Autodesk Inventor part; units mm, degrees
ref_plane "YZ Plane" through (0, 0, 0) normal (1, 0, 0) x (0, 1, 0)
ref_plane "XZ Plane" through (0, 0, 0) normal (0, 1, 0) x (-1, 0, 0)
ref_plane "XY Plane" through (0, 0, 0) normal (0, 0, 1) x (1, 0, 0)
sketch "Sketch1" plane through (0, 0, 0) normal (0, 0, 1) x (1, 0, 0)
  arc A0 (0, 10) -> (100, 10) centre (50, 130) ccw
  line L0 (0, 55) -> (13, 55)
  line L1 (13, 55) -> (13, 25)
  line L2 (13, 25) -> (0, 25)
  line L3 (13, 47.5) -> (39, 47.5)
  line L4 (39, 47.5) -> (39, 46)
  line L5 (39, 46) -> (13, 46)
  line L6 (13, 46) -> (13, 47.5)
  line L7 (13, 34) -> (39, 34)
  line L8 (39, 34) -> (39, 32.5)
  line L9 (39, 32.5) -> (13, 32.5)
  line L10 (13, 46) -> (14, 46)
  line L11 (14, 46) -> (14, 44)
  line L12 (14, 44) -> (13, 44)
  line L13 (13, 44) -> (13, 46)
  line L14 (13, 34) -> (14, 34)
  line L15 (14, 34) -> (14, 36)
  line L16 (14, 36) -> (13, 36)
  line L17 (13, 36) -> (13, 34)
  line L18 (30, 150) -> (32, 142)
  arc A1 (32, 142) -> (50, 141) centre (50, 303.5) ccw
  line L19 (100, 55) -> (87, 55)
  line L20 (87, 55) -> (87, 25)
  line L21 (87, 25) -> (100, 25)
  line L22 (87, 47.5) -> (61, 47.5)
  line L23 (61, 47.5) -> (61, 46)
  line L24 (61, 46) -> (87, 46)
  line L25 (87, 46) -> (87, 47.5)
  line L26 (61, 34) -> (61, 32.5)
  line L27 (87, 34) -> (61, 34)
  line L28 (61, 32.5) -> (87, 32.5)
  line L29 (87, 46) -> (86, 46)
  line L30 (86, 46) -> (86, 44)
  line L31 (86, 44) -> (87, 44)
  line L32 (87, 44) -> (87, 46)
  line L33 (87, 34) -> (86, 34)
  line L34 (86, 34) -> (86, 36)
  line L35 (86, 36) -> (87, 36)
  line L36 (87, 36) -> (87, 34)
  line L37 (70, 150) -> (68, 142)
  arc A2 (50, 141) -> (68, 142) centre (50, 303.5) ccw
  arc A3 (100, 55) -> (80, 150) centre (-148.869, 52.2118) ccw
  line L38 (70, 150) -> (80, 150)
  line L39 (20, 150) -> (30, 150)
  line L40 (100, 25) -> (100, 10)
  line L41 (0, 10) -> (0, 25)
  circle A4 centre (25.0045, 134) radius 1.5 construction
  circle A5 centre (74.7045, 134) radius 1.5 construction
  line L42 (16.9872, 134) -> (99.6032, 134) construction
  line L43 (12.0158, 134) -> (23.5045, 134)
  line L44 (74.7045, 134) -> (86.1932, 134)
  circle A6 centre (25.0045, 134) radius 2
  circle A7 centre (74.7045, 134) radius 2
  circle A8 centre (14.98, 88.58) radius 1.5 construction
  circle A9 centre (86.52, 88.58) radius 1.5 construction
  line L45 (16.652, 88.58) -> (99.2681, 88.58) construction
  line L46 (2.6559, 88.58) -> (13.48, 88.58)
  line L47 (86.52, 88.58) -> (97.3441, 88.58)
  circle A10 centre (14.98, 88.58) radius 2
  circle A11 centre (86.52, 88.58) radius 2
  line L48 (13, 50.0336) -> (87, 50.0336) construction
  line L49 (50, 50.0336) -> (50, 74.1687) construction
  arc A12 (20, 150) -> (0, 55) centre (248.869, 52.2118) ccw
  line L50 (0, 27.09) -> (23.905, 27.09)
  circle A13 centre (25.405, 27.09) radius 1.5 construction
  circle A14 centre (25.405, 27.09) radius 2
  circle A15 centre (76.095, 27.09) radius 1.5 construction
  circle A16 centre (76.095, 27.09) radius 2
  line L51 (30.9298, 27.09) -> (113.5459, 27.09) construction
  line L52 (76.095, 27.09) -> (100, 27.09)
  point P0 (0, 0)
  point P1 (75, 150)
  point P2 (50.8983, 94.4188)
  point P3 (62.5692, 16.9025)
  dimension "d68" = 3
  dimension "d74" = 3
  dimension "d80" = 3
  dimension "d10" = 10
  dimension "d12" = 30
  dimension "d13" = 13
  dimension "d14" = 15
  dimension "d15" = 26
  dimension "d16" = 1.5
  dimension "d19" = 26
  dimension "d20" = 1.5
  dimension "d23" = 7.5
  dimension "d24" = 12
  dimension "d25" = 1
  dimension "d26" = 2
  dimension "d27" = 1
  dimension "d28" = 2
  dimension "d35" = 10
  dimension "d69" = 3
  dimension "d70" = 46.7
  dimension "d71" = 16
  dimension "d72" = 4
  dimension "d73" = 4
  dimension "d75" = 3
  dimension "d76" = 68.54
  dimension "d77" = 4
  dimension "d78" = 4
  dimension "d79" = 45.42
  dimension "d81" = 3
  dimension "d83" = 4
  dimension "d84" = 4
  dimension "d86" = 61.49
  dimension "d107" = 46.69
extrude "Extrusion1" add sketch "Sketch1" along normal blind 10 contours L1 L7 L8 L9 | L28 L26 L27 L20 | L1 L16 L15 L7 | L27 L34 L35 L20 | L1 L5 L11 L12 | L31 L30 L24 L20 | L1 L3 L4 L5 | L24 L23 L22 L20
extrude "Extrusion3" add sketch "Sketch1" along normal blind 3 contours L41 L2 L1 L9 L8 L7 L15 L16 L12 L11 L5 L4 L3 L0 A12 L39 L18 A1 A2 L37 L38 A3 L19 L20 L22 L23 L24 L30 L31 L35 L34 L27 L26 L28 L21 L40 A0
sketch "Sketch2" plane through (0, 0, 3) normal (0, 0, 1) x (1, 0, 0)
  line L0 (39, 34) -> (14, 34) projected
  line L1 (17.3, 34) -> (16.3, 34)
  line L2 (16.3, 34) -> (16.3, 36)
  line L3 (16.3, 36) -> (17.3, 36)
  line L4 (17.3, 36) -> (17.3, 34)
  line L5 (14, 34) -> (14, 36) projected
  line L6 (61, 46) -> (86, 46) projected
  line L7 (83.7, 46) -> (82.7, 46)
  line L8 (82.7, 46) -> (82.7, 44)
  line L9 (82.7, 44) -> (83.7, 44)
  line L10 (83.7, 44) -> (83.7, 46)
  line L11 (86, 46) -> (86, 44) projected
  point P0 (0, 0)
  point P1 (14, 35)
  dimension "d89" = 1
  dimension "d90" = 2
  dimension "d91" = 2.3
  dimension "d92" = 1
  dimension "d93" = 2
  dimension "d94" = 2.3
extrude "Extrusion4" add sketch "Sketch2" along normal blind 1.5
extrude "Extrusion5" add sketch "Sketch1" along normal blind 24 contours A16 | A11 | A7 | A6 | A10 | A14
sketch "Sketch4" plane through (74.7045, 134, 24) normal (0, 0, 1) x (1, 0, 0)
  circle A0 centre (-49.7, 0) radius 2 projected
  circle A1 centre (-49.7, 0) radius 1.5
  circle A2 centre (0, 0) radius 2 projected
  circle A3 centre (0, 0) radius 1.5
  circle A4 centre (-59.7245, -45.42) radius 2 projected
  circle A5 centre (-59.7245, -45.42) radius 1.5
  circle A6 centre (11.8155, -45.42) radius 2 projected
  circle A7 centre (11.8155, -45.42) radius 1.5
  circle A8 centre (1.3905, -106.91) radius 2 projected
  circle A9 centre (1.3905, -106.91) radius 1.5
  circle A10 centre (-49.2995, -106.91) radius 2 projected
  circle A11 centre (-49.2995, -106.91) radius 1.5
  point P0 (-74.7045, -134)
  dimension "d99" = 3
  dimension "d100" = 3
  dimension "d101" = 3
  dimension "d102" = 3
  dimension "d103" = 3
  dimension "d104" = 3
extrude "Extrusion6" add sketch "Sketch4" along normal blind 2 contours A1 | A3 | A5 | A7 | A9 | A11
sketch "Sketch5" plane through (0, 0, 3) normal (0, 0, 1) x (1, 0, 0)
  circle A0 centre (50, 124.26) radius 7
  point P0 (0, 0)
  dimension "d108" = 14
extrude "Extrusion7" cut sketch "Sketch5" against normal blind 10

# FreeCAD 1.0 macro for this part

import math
import FreeCAD as App
import Part
import Sketcher

V = App.Vector

doc = App.newDocument("Part")
params = doc.addObject("Spreadsheet::Sheet", "Params")
for row, (alias, value) in enumerate([
    ("sketch1_width", "26 mm"),
    ("sketch1_width2", "1 mm"),
    ("sketch1_height", "2 mm"),
    ("sketch1_height2", "1.5 mm"),
    ("pad1_length", "10 mm"),
    ("sketch2_diameter", "4 mm"),
    ("sketch2_width", "13 mm"),
    ("sketch2_width2", "26 mm"),
    ("sketch2_width3", "1 mm"),
    ("sketch2_width4", "10 mm"),
    ("pad2_length", "3 mm"),
    ("sketch3_width", "1 mm"),
    ("sketch3_height", "2 mm"),
    ("pad3_length", "1.5 mm"),
    ("sketch4_diameter", "4 mm"),
    ("pad4_length", "24 mm"),
    ("sketch5_diameter", "3 mm"),
    ("pad5_length", "2 mm"),
    ("sketch6_diameter", "14 mm"),
    ("pocket1_length", "10 mm"),
], start=1):
    params.set(f"A{row}", alias)
    params.set(f"B{row}", "=" + value)
    params.setAlias(f"B{row}", alias)

body = doc.addObject("PartDesign::Body", "Body")
body.AllowCompound = True

# Sketch on XY plane
sketch1 = doc.addObject("Sketcher::SketchObject", "Sketch")
body.addObject(sketch1)
sketch1.AttachmentSupport = (doc.XY_Plane, [""])
sketch1.MapMode = "FlatFace"
sketch1.addGeometry([
    Part.LineSegment(V(13, 32.5, 0), V(39, 32.5, 0)),  # 0
    Part.LineSegment(V(39, 32.5, 0), V(39, 34, 0)),  # 1
    Part.LineSegment(V(39, 34, 0), V(14, 34, 0)),  # 2
    Part.LineSegment(V(14, 34, 0), V(14, 36, 0)),  # 3
    Part.LineSegment(V(14, 36, 0), V(13, 36, 0)),  # 4
    Part.LineSegment(V(13, 36, 0), V(13, 32.5, 0)),  # 5
    Part.LineSegment(V(61, 32.5, 0), V(87, 32.5, 0)),  # 6
    Part.LineSegment(V(87, 32.5, 0), V(87, 36, 0)),  # 7
    Part.LineSegment(V(87, 36, 0), V(86, 36, 0)),  # 8
    Part.LineSegment(V(86, 36, 0), V(86, 34, 0)),  # 9
    Part.LineSegment(V(86, 34, 0), V(61, 34, 0)),  # 10
    Part.LineSegment(V(61, 34, 0), V(61, 32.5, 0)),  # 11
    Part.LineSegment(V(13, 44, 0), V(14, 44, 0)),  # 12
    Part.LineSegment(V(14, 44, 0), V(14, 46, 0)),  # 13
    Part.LineSegment(V(14, 46, 0), V(39, 46, 0)),  # 14
    Part.LineSegment(V(39, 46, 0), V(39, 47.5, 0)),  # 15
    Part.LineSegment(V(39, 47.5, 0), V(13, 47.5, 0)),  # 16
    Part.LineSegment(V(13, 47.5, 0), V(13, 44, 0)),  # 17
    Part.LineSegment(V(86, 44, 0), V(87, 44, 0)),  # 18
    Part.LineSegment(V(87, 44, 0), V(87, 47.5, 0)),  # 19
    Part.LineSegment(V(87, 47.5, 0), V(61, 47.5, 0)),  # 20
    Part.LineSegment(V(61, 47.5, 0), V(61, 46, 0)),  # 21
    Part.LineSegment(V(61, 46, 0), V(86, 46, 0)),  # 22
    Part.LineSegment(V(86, 46, 0), V(86, 44, 0)),  # 23
], False)
sketch1.addConstraint([
    Sketcher.Constraint("Coincident", 0, 2, 1, 1),
    Sketcher.Constraint("Coincident", 1, 2, 2, 1),
    Sketcher.Constraint("Coincident", 2, 2, 3, 1),
    Sketcher.Constraint("Coincident", 3, 2, 4, 1),
    Sketcher.Constraint("Coincident", 4, 2, 5, 1),
    Sketcher.Constraint("Coincident", 5, 2, 0, 1),
    Sketcher.Constraint("Coincident", 6, 2, 7, 1),
    Sketcher.Constraint("Coincident", 7, 2, 8, 1),
    Sketcher.Constraint("Coincident", 8, 2, 9, 1),
    Sketcher.Constraint("Coincident", 9, 2, 10, 1),
    Sketcher.Constraint("Coincident", 10, 2, 11, 1),
    Sketcher.Constraint("Coincident", 11, 2, 6, 1),
    Sketcher.Constraint("Coincident", 12, 2, 13, 1),
    Sketcher.Constraint("Coincident", 13, 2, 14, 1),
    Sketcher.Constraint("Coincident", 14, 2, 15, 1),
    Sketcher.Constraint("Coincident", 15, 2, 16, 1),
    Sketcher.Constraint("Coincident", 16, 2, 17, 1),
    Sketcher.Constraint("Coincident", 17, 2, 12, 1),
    Sketcher.Constraint("Coincident", 18, 2, 19, 1),
    Sketcher.Constraint("Coincident", 19, 2, 20, 1),
    Sketcher.Constraint("Coincident", 20, 2, 21, 1),
    Sketcher.Constraint("Coincident", 21, 2, 22, 1),
    Sketcher.Constraint("Coincident", 22, 2, 23, 1),
    Sketcher.Constraint("Coincident", 23, 2, 18, 1),
    Sketcher.Constraint("Horizontal", 0),
    Sketcher.Constraint("Vertical", 1),
    Sketcher.Constraint("Horizontal", 2),
    Sketcher.Constraint("Vertical", 3),
    Sketcher.Constraint("Horizontal", 4),
    Sketcher.Constraint("Vertical", 5),
    Sketcher.Constraint("Horizontal", 6),
    Sketcher.Constraint("Vertical", 7),
    Sketcher.Constraint("Horizontal", 8),
    Sketcher.Constraint("Vertical", 9),
    Sketcher.Constraint("Horizontal", 10),
    Sketcher.Constraint("Vertical", 11),
    Sketcher.Constraint("Horizontal", 12),
    Sketcher.Constraint("Vertical", 13),
    Sketcher.Constraint("Horizontal", 14),
    Sketcher.Constraint("Vertical", 15),
    Sketcher.Constraint("Horizontal", 16),
    Sketcher.Constraint("Vertical", 17),
    Sketcher.Constraint("Horizontal", 18),
    Sketcher.Constraint("Vertical", 19),
    Sketcher.Constraint("Horizontal", 20),
    Sketcher.Constraint("Vertical", 21),
    Sketcher.Constraint("Horizontal", 22),
    Sketcher.Constraint("Vertical", 23),
    Sketcher.Constraint("Horizontal", 5, 2, 6, 2),
    Sketcher.Constraint("Horizontal", 4, 2, 7, 2),
    Sketcher.Constraint("Horizontal", 2, 2, 9, 2),
    Sketcher.Constraint("Horizontal", 17, 2, 18, 2),
    Sketcher.Constraint("Horizontal", 16, 2, 19, 2),
    Sketcher.Constraint("Horizontal", 14, 2, 21, 2),
    Sketcher.Constraint("Vertical", 3, 2, 12, 2),
    Sketcher.Constraint("Vertical", 1, 2, 14, 2),
    Sketcher.Constraint("Vertical", 5, 2, 16, 2),
    Sketcher.Constraint("Vertical", 7, 2, 18, 2),
    Sketcher.Constraint("Vertical", 11, 2, 20, 2),
    Sketcher.Constraint("Vertical", 9, 2, 22, 2),
    Sketcher.Constraint("Equal", 0, 6),
    Sketcher.Constraint("Equal", 4, 8),
    Sketcher.Constraint("Equal", 9, 13),
    Sketcher.Constraint("Equal", 11, 15),
    Sketcher.Constraint("DistanceX", 0, 1, 0, 2, 26.0),
    Sketcher.Constraint("DistanceX", 4, 2, 4, 1, 1.0),
    Sketcher.Constraint("DistanceY", 3, 1, 3, 2, 2.0),
    Sketcher.Constraint("DistanceY", 1, 1, 1, 2, 1.5),
    Sketcher.Constraint("DistanceX", -1, 1, 4, 2, 13.0),
    Sketcher.Constraint("DistanceY", 2, 2, 12, 2, 10.0),
    Sketcher.Constraint("DistanceY", -1, 1, 1, 2, 34.0),
    Sketcher.Constraint("DistanceX", -1, 1, 6, 2, 87.0),
])
sketch1.setExpression("Constraints[64]", "Params.sketch1_width")
sketch1.setExpression("Constraints[65]", "Params.sketch1_width2")
sketch1.setExpression("Constraints[66]", "Params.sketch1_height")
sketch1.setExpression("Constraints[67]", "Params.sketch1_height2")
pad1 = doc.addObject("PartDesign::Pad", "Pad")
body.addObject(pad1)
pad1.Profile = sketch1
pad1.setExpression("Length", "Params.pad1_length")

# Sketch on XY plane
sketch2 = doc.addObject("Sketcher::SketchObject", "Sketch001")
body.addObject(sketch2)
sketch2.AttachmentSupport = (doc.XY_Plane, [""])
sketch2.MapMode = "FlatFace"
sketch2.addGeometry([
    Part.LineSegment(V(0, 25, 0), V(0, 10, 0)),  # 0
    Part.ArcOfCircle(Part.Circle(V(50, 130, 0), V(0, 0, 1), 130), math.radians(-113), math.radians(-67)),  # 1
    Part.LineSegment(V(100, 10, 0), V(100, 25, 0)),  # 2
    Part.LineSegment(V(100, 25, 0), V(87, 25, 0)),  # 3
    Part.LineSegment(V(87, 25, 0), V(87, 27.1, 0)),  # 4
    Part.LineSegment(V(87, 27.1, 0), V(87, 32.5, 0)),  # 5
    Part.LineSegment(V(87, 32.5, 0), V(61, 32.5, 0)),  # 6
    Part.LineSegment(V(61, 32.5, 0), V(61, 34, 0)),  # 7
    Part.LineSegment(V(61, 34, 0), V(86, 34, 0)),  # 8
    Part.LineSegment(V(86, 34, 0), V(86, 36, 0)),  # 9
    Part.LineSegment(V(86, 36, 0), V(87, 36, 0)),  # 10
    Part.LineSegment(V(87, 36, 0), V(87, 44, 0)),  # 11
    Part.LineSegment(V(87, 44, 0), V(86, 44, 0)),  # 12
    Part.LineSegment(V(86, 44, 0), V(86, 46, 0)),  # 13
    Part.LineSegment(V(86, 46, 0), V(61, 46, 0)),  # 14
    Part.LineSegment(V(61, 46, 0), V(61, 47.5, 0)),  # 15
    Part.LineSegment(V(61, 47.5, 0), V(87, 47.5, 0)),  # 16
    Part.LineSegment(V(87, 47.5, 0), V(87, 55, 0)),  # 17
    Part.LineSegment(V(87, 55, 0), V(100, 55, 0)),  # 18
    Part.ArcOfCircle(Part.Circle(V(-148.9, 52.2, 0), V(0, 0, 1), 248.9), math.radians(0.64), math.radians(8.4)),  # 19
    Part.ArcOfCircle(Part.Circle(V(-148.9, 52.2, 0), V(0, 0, 1), 248.9), math.radians(8.4), math.radians(19.18)),  # 20
    Part.ArcOfCircle(Part.Circle(V(-148.9, 52.2, 0), V(0, 0, 1), 248.9), math.radians(19.18), math.radians(23.14)),  # 21
    Part.LineSegment(V(80, 150, 0), V(70, 150, 0)),  # 22
    Part.LineSegment(V(70, 150, 0), V(68, 142, 0)),  # 23
    Part.ArcOfCircle(Part.Circle(V(50, 303.5, 0), V(0, 0, 1), 162.5), math.radians(-96.36), math.radians(-83.64)),  # 24
    Part.LineSegment(V(32, 142, 0), V(30, 150, 0)),  # 25
    Part.LineSegment(V(30, 150, 0), V(20, 150, 0)),  # 26
    Part.ArcOfCircle(Part.Circle(V(248.9, 52.2, 0), V(0, 0, 1), 248.9), math.radians(156.86), math.radians(160.82)),  # 27
    Part.ArcOfCircle(Part.Circle(V(248.9, 52.2, 0), V(0, 0, 1), 248.9), math.radians(160.82), math.radians(171.6)),  # 28
    Part.ArcOfCircle(Part.Circle(V(248.9, 52.2, 0), V(0, 0, 1), 248.9), math.radians(171.6), math.radians(179.36)),  # 29
    Part.LineSegment(V(0, 55, 0), V(13, 55, 0)),  # 30
    Part.LineSegment(V(13, 55, 0), V(13, 47.5, 0)),  # 31
    Part.LineSegment(V(13, 47.5, 0), V(39, 47.5, 0)),  # 32
    Part.LineSegment(V(39, 47.5, 0), V(39, 46, 0)),  # 33
    Part.LineSegment(V(39, 46, 0), V(14, 46, 0)),  # 34
    Part.LineSegment(V(14, 46, 0), V(14, 44, 0)),  # 35
    Part.LineSegment(V(14, 44, 0), V(13, 44, 0)),  # 36
    Part.LineSegment(V(13, 44, 0), V(13, 36, 0)),  # 37
    Part.LineSegment(V(13, 36, 0), V(14, 36, 0)),  # 38
    Part.LineSegment(V(14, 36, 0), V(14, 34, 0)),  # 39
    Part.LineSegment(V(14, 34, 0), V(39, 34, 0)),  # 40
    Part.LineSegment(V(39, 34, 0), V(39, 32.5, 0)),  # 41
    Part.LineSegment(V(39, 32.5, 0), V(13, 32.5, 0)),  # 42
    Part.LineSegment(V(13, 32.5, 0), V(13, 27.1, 0)),  # 43
    Part.LineSegment(V(13, 27.1, 0), V(13, 25, 0)),  # 44
    Part.LineSegment(V(13, 25, 0), V(0, 25, 0)),  # 45
    Part.Circle(V(25.4, 27.1, 0), V(0, 0, 1), 2),  # 46
    Part.Circle(V(76.1, 27.1, 0), V(0, 0, 1), 2),  # 47
    Part.Circle(V(15, 88.6, 0), V(0, 0, 1), 2),  # 48
    Part.Circle(V(25, 134, 0), V(0, 0, 1), 2),  # 49
    Part.Circle(V(86.5, 88.6, 0), V(0, 0, 1), 2),  # 50
    Part.Circle(V(74.7, 134, 0), V(0, 0, 1), 2),  # 51
], False)
sketch2.addConstraint([
    Sketcher.Constraint("Coincident", 0, 2, 1, 1),
    Sketcher.Constraint("Coincident", 1, 2, 2, 1),
    Sketcher.Constraint("Coincident", 2, 2, 3, 1),
    Sketcher.Constraint("Coincident", 3, 2, 4, 1),
    Sketcher.Constraint("Coincident", 4, 2, 5, 1),
    Sketcher.Constraint("Coincident", 5, 2, 6, 1),
    Sketcher.Constraint("Coincident", 6, 2, 7, 1),
    Sketcher.Constraint("Coincident", 7, 2, 8, 1),
    Sketcher.Constraint("Coincident", 8, 2, 9, 1),
    Sketcher.Constraint("Coincident", 9, 2, 10, 1),
    Sketcher.Constraint("Coincident", 10, 2, 11, 1),
    Sketcher.Constraint("Coincident", 11, 2, 12, 1),
    Sketcher.Constraint("Coincident", 12, 2, 13, 1),
    Sketcher.Constraint("Coincident", 13, 2, 14, 1),
    Sketcher.Constraint("Coincident", 14, 2, 15, 1),
    Sketcher.Constraint("Coincident", 15, 2, 16, 1),
    Sketcher.Constraint("Coincident", 16, 2, 17, 1),
    Sketcher.Constraint("Coincident", 17, 2, 18, 1),
    Sketcher.Constraint("Coincident", 18, 2, 19, 1),
    Sketcher.Constraint("Tangent", 19, 2, 20, 1),
    Sketcher.Constraint("Tangent", 20, 2, 21, 1),
    Sketcher.Constraint("Coincident", 21, 2, 22, 1),
    Sketcher.Constraint("Coincident", 22, 2, 23, 1),
    Sketcher.Constraint("Coincident", 23, 2, 24, 2),
    Sketcher.Constraint("Coincident", 24, 1, 25, 1),
    Sketcher.Constraint("Coincident", 25, 2, 26, 1),
    Sketcher.Constraint("Coincident", 26, 2, 27, 1),
    Sketcher.Constraint("Tangent", 27, 2, 28, 1),
    Sketcher.Constraint("Tangent", 28, 2, 29, 1),
    Sketcher.Constraint("Coincident", 29, 2, 30, 1),
    Sketcher.Constraint("Coincident", 30, 2, 31, 1),
    Sketcher.Constraint("Coincident", 31, 2, 32, 1),
    Sketcher.Constraint("Coincident", 32, 2, 33, 1),
    Sketcher.Constraint("Coincident", 33, 2, 34, 1),
    Sketcher.Constraint("Coincident", 34, 2, 35, 1),
    Sketcher.Constraint("Coincident", 35, 2, 36, 1),
    Sketcher.Constraint("Coincident", 36, 2, 37, 1),
    Sketcher.Constraint("Coincident", 37, 2, 38, 1),
    Sketcher.Constraint("Coincident", 38, 2, 39, 1),
    Sketcher.Constraint("Coincident", 39, 2, 40, 1),
    Sketcher.Constraint("Coincident", 40, 2, 41, 1),
    Sketcher.Constraint("Coincident", 41, 2, 42, 1),
    Sketcher.Constraint("Coincident", 42, 2, 43, 1),
    Sketcher.Constraint("Coincident", 43, 2, 44, 1),
    Sketcher.Constraint("Coincident", 44, 2, 45, 1),
    Sketcher.Constraint("Coincident", 45, 2, 0, 1),
    Sketcher.Constraint("Vertical", 0),
    Sketcher.Constraint("Vertical", 2),
    Sketcher.Constraint("Horizontal", 3),
    Sketcher.Constraint("Vertical", 4),
    Sketcher.Constraint("Vertical", 5),
    Sketcher.Constraint("Horizontal", 6),
    Sketcher.Constraint("Vertical", 7),
    Sketcher.Constraint("Horizontal", 8),
    Sketcher.Constraint("Vertical", 9),
    Sketcher.Constraint("Horizontal", 10),
    Sketcher.Constraint("Vertical", 11),
    Sketcher.Constraint("Horizontal", 12),
    Sketcher.Constraint("Vertical", 13),
    Sketcher.Constraint("Horizontal", 14),
    Sketcher.Constraint("Vertical", 15),
    Sketcher.Constraint("Horizontal", 16),
    Sketcher.Constraint("Vertical", 17),
    Sketcher.Constraint("Horizontal", 18),
    Sketcher.Constraint("Horizontal", 22),
    Sketcher.Constraint("Horizontal", 26),
    Sketcher.Constraint("Horizontal", 30),
    Sketcher.Constraint("Vertical", 31),
    Sketcher.Constraint("Horizontal", 32),
    Sketcher.Constraint("Vertical", 33),
    Sketcher.Constraint("Horizontal", 34),
    Sketcher.Constraint("Vertical", 35),
    Sketcher.Constraint("Horizontal", 36),
    Sketcher.Constraint("Vertical", 37),
    Sketcher.Constraint("Horizontal", 38),
    Sketcher.Constraint("Vertical", 39),
    Sketcher.Constraint("Horizontal", 40),
    Sketcher.Constraint("Vertical", 41),
    Sketcher.Constraint("Horizontal", 42),
    Sketcher.Constraint("Vertical", 43),
    Sketcher.Constraint("Vertical", 44),
    Sketcher.Constraint("Horizontal", 45),
    Sketcher.Constraint("Coincident", 21, 3, 19, 3),
    Sketcher.Constraint("Coincident", 29, 3, 27, 3),
    Sketcher.Constraint("Equal", 21, 27),
    Sketcher.Constraint("Equal", 46, 47),
    Sketcher.Constraint("Equal", 47, 48),
    Sketcher.Constraint("Equal", 48, 49),
    Sketcher.Constraint("Equal", 49, 50),
    Sketcher.Constraint("Equal", 50, 51),
    Sketcher.Constraint("PointOnObject", 0, 2, -2),
    Sketcher.Constraint("PointOnObject", 29, 2, -2),
    Sketcher.Constraint("Horizontal", 21, 3, 27, 3),
    Sketcher.Constraint("Horizontal", 46, 3, 47, 3),
    Sketcher.Constraint("Horizontal", 48, 3, 50, 3),
    Sketcher.Constraint("Horizontal", 49, 3, 51, 3),
    Sketcher.Constraint("Horizontal", 0, 2, 1, 2),
    Sketcher.Constraint("Horizontal", 47, 3, 4, 2),
    Sketcher.Constraint("Horizontal", 50, 3, 19, 2),
    Sketcher.Constraint("Horizontal", 51, 3, 20, 2),
    Sketcher.Constraint("Horizontal", 23, 2, 24, 1),
    Sketcher.Constraint("Horizontal", 22, 2, 25, 2),
    Sketcher.Constraint("Horizontal", 20, 2, 27, 2),
    Sketcher.Constraint("Horizontal", 19, 2, 28, 2),
    Sketcher.Constraint("Horizontal", 18, 2, 29, 2),
    Sketcher.Constraint("Horizontal", 16, 2, 31, 2),
    Sketcher.Constraint("Horizontal", 14, 2, 33, 2),
    Sketcher.Constraint("Horizontal", 12, 2, 35, 2),
    Sketcher.Constraint("Horizontal", 10, 2, 37, 2),
    Sketcher.Constraint("Horizontal", 8, 2, 39, 2),
    Sketcher.Constraint("Horizontal", 6, 2, 41, 2),
    Sketcher.Constraint("Horizontal", 4, 2, 43, 2),
    Sketcher.Constraint("Horizontal", 3, 2, 44, 2),
    Sketcher.Constraint("Vertical", 1, 3, 24, 3),
    Sketcher.Constraint("Vertical", 5, 2, 10, 2),
    Sketcher.Constraint("Vertical", 9, 2, 12, 2),
    Sketcher.Constraint("Vertical", 7, 2, 14, 2),
    Sketcher.Constraint("Vertical", 11, 2, 16, 2),
    Sketcher.Constraint("Vertical", 2, 2, 18, 2),
    Sketcher.Constraint("Vertical", 31, 2, 36, 2),
    Sketcher.Constraint("Vertical", 35, 2, 38, 2),
    Sketcher.Constraint("Vertical", 33, 2, 40, 2),
    Sketcher.Constraint("Vertical", 37, 2, 42, 2),
    Sketcher.Constraint("Equal", 22, 26),
    Sketcher.Constraint("Equal", 18, 30),
    Sketcher.Constraint("Equal", 16, 32),
    Sketcher.Constraint("Equal", 14, 34),
    Sketcher.Constraint("Equal", 9, 13),
    Sketcher.Constraint("Equal", 7, 15),
    Sketcher.Constraint("Diameter", 46, 4.0),
    Sketcher.Constraint("DistanceX", 3, 2, 3, 1, 13.0),
    Sketcher.Constraint("DistanceX", 6, 2, 6, 1, 26.0),
    Sketcher.Constraint("DistanceX", 10, 1, 10, 2, 1.0),
    Sketcher.Constraint("DistanceX", 22, 2, 22, 1, 10.0),
    Sketcher.Constraint("DistanceY", 0, 2, 0, 1, 15.0),
    Sketcher.Constraint("DistanceY", 9, 1, 9, 2, 2.0),
    Sketcher.Constraint("DistanceY", 7, 1, 7, 2, 1.5),
    Sketcher.Constraint("DistanceY", 17, 1, 17, 2, 7.5),
    Sketcher.Constraint("DistanceY", -1, 1, 0, 2, 10.0),
    Sketcher.Constraint("DistanceX", -1, 1, 25, 2, 30.0),
    Sketcher.Constraint("Radius", 1, 130.0),
    Sketcher.Constraint("DistanceY", 1, 3, 49, 3, 4.0),
    Sketcher.Constraint("DistanceY", 8, 2, 11, 2, 10.0),
    Sketcher.Constraint("DistanceY", 51, 3, 22, 2, 16.0),
    Sketcher.Constraint("DistanceX", 23, 2, 22, 2, 2.0),
    Sketcher.Constraint("DistanceY", 1, 3, 23, 2, 12.0),
    Sketcher.Constraint("DistanceX", 26, 2, 1, 3, 30.0),
    Sketcher.Constraint("Radius", 24, 162.5),
    Sketcher.Constraint("DistanceY", 3, 2, 5, 2, 7.5),
    Sketcher.Constraint("DistanceY", 46, 3, 48, 3, 61.49),
    Sketcher.Constraint("DistanceY", 48, 3, 49, 3, 45.42),
    Sketcher.Constraint("Radius", 19, 248.8846),
    Sketcher.Constraint("DistanceX", 49, 3, 51, 3, 49.7),
    Sketcher.Constraint("DistanceX", -1, 1, 48, 3, 14.98),
    Sketcher.Constraint("DistanceX", -1, 1, 50, 3, 86.52),
    Sketcher.Constraint("DistanceX", 46, 3, 47, 3, 50.69),
    Sketcher.Constraint("DistanceX", -1, 1, 46, 3, 25.405),
    Sketcher.Constraint("DistanceX", -1, 1, 49, 3, 25.0045),
])
sketch2.setExpression("Constraints[129]", "Params.sketch2_diameter")
sketch2.setExpression("Constraints[130]", "Params.sketch2_width")
sketch2.setExpression("Constraints[131]", "Params.sketch2_width2")
sketch2.setExpression("Constraints[132]", "Params.sketch2_width3")
sketch2.setExpression("Constraints[133]", "Params.sketch2_width4")
pad2 = doc.addObject("PartDesign::Pad", "Pad001")
body.addObject(pad2)
pad2.Profile = sketch2
pad2.setExpression("Length", "Params.pad2_length")

# Sketch on XY plane
sketch3 = doc.addObject("Sketcher::SketchObject", "Sketch002")
body.addObject(sketch3)
sketch3.AttachmentSupport = (doc.XY_Plane, [""])
sketch3.MapMode = "FlatFace"
sketch3.AttachmentOffset = App.Placement(V(0, 0, 3), App.Rotation())
sketch3.addGeometry([
    Part.LineSegment(V(16.3, 34, 0), V(17.3, 34, 0)),  # 0
    Part.LineSegment(V(17.3, 34, 0), V(17.3, 36, 0)),  # 1
    Part.LineSegment(V(17.3, 36, 0), V(16.3, 36, 0)),  # 2
    Part.LineSegment(V(16.3, 36, 0), V(16.3, 34, 0)),  # 3
    Part.LineSegment(V(83.7, 46, 0), V(82.7, 46, 0)),  # 4
    Part.LineSegment(V(82.7, 46, 0), V(82.7, 44, 0)),  # 5
    Part.LineSegment(V(82.7, 44, 0), V(83.7, 44, 0)),  # 6
    Part.LineSegment(V(83.7, 44, 0), V(83.7, 46, 0)),  # 7
], False)
sketch3.addConstraint([
    Sketcher.Constraint("Coincident", 0, 2, 1, 1),
    Sketcher.Constraint("Coincident", 1, 2, 2, 1),
    Sketcher.Constraint("Coincident", 2, 2, 3, 1),
    Sketcher.Constraint("Coincident", 3, 2, 0, 1),
    Sketcher.Constraint("Coincident", 4, 2, 5, 1),
    Sketcher.Constraint("Coincident", 5, 2, 6, 1),
    Sketcher.Constraint("Coincident", 6, 2, 7, 1),
    Sketcher.Constraint("Coincident", 7, 2, 4, 1),
    Sketcher.Constraint("Horizontal", 0),
    Sketcher.Constraint("Vertical", 1),
    Sketcher.Constraint("Horizontal", 2),
    Sketcher.Constraint("Vertical", 3),
    Sketcher.Constraint("Horizontal", 4),
    Sketcher.Constraint("Vertical", 5),
    Sketcher.Constraint("Horizontal", 6),
    Sketcher.Constraint("Vertical", 7),
    Sketcher.Constraint("Equal", 2, 4),
    Sketcher.Constraint("Equal", 3, 5),
    Sketcher.Constraint("DistanceX", 0, 1, 0, 2, 1.0),
    Sketcher.Constraint("DistanceY", 1, 1, 1, 2, 2.0),
    Sketcher.Constraint("DistanceY", -1, 1, 0, 2, 34.0),
    Sketcher.Constraint("DistanceY", -1, 1, 4, 2, 46.0),
    Sketcher.Constraint("DistanceX", -1, 1, 0, 2, 17.3),
    Sketcher.Constraint("DistanceX", -1, 1, 4, 2, 82.7),
])
sketch3.setExpression("Constraints[18]", "Params.sketch3_width")
sketch3.setExpression("Constraints[19]", "Params.sketch3_height")
pad3 = doc.addObject("PartDesign::Pad", "Pad002")
body.addObject(pad3)
pad3.Profile = sketch3
pad3.setExpression("Length", "Params.pad3_length")

# Sketch on XY plane
sketch4 = doc.addObject("Sketcher::SketchObject", "Sketch003")
body.addObject(sketch4)
sketch4.AttachmentSupport = (doc.XY_Plane, [""])
sketch4.MapMode = "FlatFace"
sketch4.addGeometry([
    Part.Circle(V(76.1, 27.1, 0), V(0, 0, 1), 2),  # 0
    Part.Circle(V(86.5, 88.6, 0), V(0, 0, 1), 2),  # 1
    Part.Circle(V(74.7, 134, 0), V(0, 0, 1), 2),  # 2
    Part.Circle(V(25, 134, 0), V(0, 0, 1), 2),  # 3
    Part.Circle(V(15, 88.6, 0), V(0, 0, 1), 2),  # 4
    Part.Circle(V(25.4, 27.1, 0), V(0, 0, 1), 2),  # 5
], False)
sketch4.addConstraint([
    Sketcher.Constraint("Equal", 0, 1),
    Sketcher.Constraint("Equal", 1, 2),
    Sketcher.Constraint("Equal", 2, 3),
    Sketcher.Constraint("Equal", 3, 4),
    Sketcher.Constraint("Equal", 4, 5),
    Sketcher.Constraint("Horizontal", 2, 3, 3, 3),
    Sketcher.Constraint("Horizontal", 1, 3, 4, 3),
    Sketcher.Constraint("Horizontal", 0, 3, 5, 3),
    Sketcher.Constraint("Diameter", 0, 4.0),
    Sketcher.Constraint("DistanceY", 0, 3, 1, 3, 61.49),
    Sketcher.Constraint("DistanceY", 1, 3, 2, 3, 45.42),
    Sketcher.Constraint("DistanceY", -1, 1, 2, 3, 134.0),
    Sketcher.Constraint("DistanceX", 3, 3, 2, 3, 49.7),
    Sketcher.Constraint("DistanceX", -1, 1, 1, 3, 86.52),
    Sketcher.Constraint("DistanceX", -1, 1, 4, 3, 14.98),
    Sketcher.Constraint("DistanceX", 5, 3, 0, 3, 50.69),
    Sketcher.Constraint("DistanceX", -1, 1, 0, 3, 76.095),
    Sketcher.Constraint("DistanceX", -1, 1, 2, 3, 74.7045),
])
sketch4.setExpression("Constraints[8]", "Params.sketch4_diameter")
pad4 = doc.addObject("PartDesign::Pad", "Pad003")
body.addObject(pad4)
pad4.Profile = sketch4
pad4.setExpression("Length", "Params.pad4_length")

# Sketch on XY plane
sketch5 = doc.addObject("Sketcher::SketchObject", "Sketch004")
body.addObject(sketch5)
sketch5.AttachmentSupport = (doc.XY_Plane, [""])
sketch5.MapMode = "FlatFace"
sketch5.AttachmentOffset = App.Placement(V(0, 0, 24), App.Rotation())
sketch5.addGeometry([
    Part.Circle(V(25, 134, 0), V(0, 0, 1), 1.5),  # 0
    Part.Circle(V(74.7, 134, 0), V(0, 0, 1), 1.5),  # 1
    Part.Circle(V(15, 88.6, 0), V(0, 0, 1), 1.5),  # 2
    Part.Circle(V(86.5, 88.6, 0), V(0, 0, 1), 1.5),  # 3
    Part.Circle(V(76.1, 27.1, 0), V(0, 0, 1), 1.5),  # 4
    Part.Circle(V(25.4, 27.1, 0), V(0, 0, 1), 1.5),  # 5
], False)
sketch5.addConstraint([
    Sketcher.Constraint("Equal", 0, 1),
    Sketcher.Constraint("Equal", 1, 2),
    Sketcher.Constraint("Equal", 2, 3),
    Sketcher.Constraint("Equal", 3, 4),
    Sketcher.Constraint("Equal", 4, 5),
    Sketcher.Constraint("Horizontal", 0, 3, 1, 3),
    Sketcher.Constraint("Horizontal", 2, 3, 3, 3),
    Sketcher.Constraint("Horizontal", 4, 3, 5, 3),
    Sketcher.Constraint("Diameter", 0, 3.0),
    Sketcher.Constraint("DistanceY", -1, 1, 0, 3, 134.0),
    Sketcher.Constraint("DistanceX", 0, 3, 1, 3, 49.7),
    Sketcher.Constraint("DistanceX", -1, 1, 2, 3, 14.98),
    Sketcher.Constraint("DistanceY", -1, 1, 2, 3, 88.58),
    Sketcher.Constraint("DistanceX", -1, 1, 3, 3, 86.52),
    Sketcher.Constraint("DistanceY", -1, 1, 4, 3, 27.09),
    Sketcher.Constraint("DistanceX", 5, 3, 4, 3, 50.69),
    Sketcher.Constraint("DistanceX", -1, 1, 4, 3, 76.095),
    Sketcher.Constraint("DistanceX", -1, 1, 0, 3, 25.0045),
])
sketch5.setExpression("Constraints[8]", "Params.sketch5_diameter")
pad5 = doc.addObject("PartDesign::Pad", "Pad004")
body.addObject(pad5)
pad5.Profile = sketch5
pad5.setExpression("Length", "Params.pad5_length")

# Sketch on XY plane
sketch6 = doc.addObject("Sketcher::SketchObject", "Sketch005")
body.addObject(sketch6)
sketch6.AttachmentSupport = (doc.XY_Plane, [""])
sketch6.MapMode = "FlatFace"
sketch6.AttachmentOffset = App.Placement(V(0, 0, 3), App.Rotation())
sketch6.addGeometry(Part.Circle(V(50, 124, 0), V(0, 0, 1), 7), False)
sketch6.addConstraint([
    Sketcher.Constraint("Diameter", 0, 14.0),
    Sketcher.Constraint("DistanceX", -1, 1, 0, 3, 50.0),
    Sketcher.Constraint("DistanceY", -1, 1, 0, 3, 124.26),
])
sketch6.setExpression("Constraints[0]", "Params.sketch6_diameter")
pocket1 = doc.addObject("PartDesign::Pocket", "Pocket")
body.addObject(pocket1)
pocket1.Profile = sketch6
pocket1.setExpression("Length", "Params.pocket1_length")

doc.recompute()
